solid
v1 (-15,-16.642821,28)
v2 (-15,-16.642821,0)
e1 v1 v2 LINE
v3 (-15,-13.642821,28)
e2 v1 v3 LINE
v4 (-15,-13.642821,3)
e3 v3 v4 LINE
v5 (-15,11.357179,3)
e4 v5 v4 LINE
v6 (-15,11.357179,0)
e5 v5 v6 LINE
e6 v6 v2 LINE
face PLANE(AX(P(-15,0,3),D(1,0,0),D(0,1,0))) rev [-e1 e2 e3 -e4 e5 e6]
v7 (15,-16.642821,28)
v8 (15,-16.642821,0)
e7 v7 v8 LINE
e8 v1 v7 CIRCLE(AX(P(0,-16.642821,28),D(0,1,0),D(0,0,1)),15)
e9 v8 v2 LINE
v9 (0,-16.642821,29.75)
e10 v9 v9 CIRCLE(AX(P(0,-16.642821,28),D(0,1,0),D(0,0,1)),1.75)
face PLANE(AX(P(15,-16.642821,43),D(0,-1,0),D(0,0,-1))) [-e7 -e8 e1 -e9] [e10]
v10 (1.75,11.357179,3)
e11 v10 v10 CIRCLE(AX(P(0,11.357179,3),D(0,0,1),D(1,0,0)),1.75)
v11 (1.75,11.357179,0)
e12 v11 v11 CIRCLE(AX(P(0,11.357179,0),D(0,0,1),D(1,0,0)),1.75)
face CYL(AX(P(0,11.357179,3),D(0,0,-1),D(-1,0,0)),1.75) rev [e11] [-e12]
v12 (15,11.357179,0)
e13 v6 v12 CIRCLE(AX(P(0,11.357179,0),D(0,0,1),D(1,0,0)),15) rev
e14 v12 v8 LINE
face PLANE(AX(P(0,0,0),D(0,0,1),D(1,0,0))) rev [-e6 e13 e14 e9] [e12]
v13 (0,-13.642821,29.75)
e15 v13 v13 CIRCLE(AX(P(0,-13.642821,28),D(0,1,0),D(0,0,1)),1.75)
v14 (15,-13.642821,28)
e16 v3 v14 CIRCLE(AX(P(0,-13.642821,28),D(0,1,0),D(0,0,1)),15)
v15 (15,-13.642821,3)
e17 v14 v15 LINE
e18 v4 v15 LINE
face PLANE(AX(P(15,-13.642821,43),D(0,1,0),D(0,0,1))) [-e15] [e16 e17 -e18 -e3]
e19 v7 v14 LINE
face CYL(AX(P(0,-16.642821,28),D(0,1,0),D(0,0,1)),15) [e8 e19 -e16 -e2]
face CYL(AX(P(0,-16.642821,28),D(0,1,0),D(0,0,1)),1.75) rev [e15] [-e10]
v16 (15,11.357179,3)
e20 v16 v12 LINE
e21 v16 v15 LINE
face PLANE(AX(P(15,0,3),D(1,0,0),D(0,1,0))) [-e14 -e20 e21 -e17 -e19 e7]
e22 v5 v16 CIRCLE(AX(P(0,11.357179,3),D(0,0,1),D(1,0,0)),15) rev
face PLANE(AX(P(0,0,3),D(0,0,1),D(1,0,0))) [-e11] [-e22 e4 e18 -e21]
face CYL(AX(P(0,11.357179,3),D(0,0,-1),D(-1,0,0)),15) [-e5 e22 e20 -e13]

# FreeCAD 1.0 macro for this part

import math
import FreeCAD as App
import Part
import Sketcher
Q = App.Units.Quantity

doc = App.newDocument("Part")
body = doc.addObject("PartDesign::Body", "Body")

# Sketch on XY plane
sketch1 = doc.addObject("Sketcher::SketchObject", "Sketch")
body.addObject(sketch1)
sketch1.AttachmentSupport = (doc.XY_Plane, [""])
sketch1.MapMode = "FlatFace"
sketch1.addGeometry([
    Part.LineSegment(App.Vector(-15, 11.4, 0), App.Vector(-15, -13.6, 0)),  # 0
    Part.LineSegment(App.Vector(-15, -13.6, 0), App.Vector(15, -13.6, 0)),  # 1
    Part.LineSegment(App.Vector(15, -13.6, 0), App.Vector(15, 11.4, 0)),  # 2
    Part.ArcOfCircle(Part.Circle(App.Vector(0, 11.4, 0), App.Vector(0, 0, 1), 15), math.radians(0), math.radians(180)),  # 3
    Part.Circle(App.Vector(0, 11.4, 0), App.Vector(0, 0, 1), 1.8),  # 4
], False)
sketch1.addConstraint([
    Sketcher.Constraint("Coincident", 0, 2, 1, 1),
    Sketcher.Constraint("Coincident", 1, 2, 2, 1),
    Sketcher.Constraint("Tangent", 2, 2, 3, 1),
    Sketcher.Constraint("Tangent", 3, 2, 0, 1),
    Sketcher.Constraint("Vertical", 0),
    Sketcher.Constraint("Horizontal", 1),
    Sketcher.Constraint("Vertical", 2),
    Sketcher.Constraint("Coincident", 4, 3, 3, 3),
    Sketcher.Constraint("PointOnObject", 3, 3, -2),
    Sketcher.Constraint("Radius", 3, Q("15 mm")),
    Sketcher.Constraint("Diameter", 4, Q("3.5 mm")),
    Sketcher.Constraint("DistanceY", 0, 2, 0, 1, Q("25 mm")),
    Sketcher.Constraint("DistanceY", -1, 1, 3, 3, Q("11.357179 mm")),
])
pad1 = doc.addObject("PartDesign::Pad", "Pad")
body.addObject(pad1)
pad1.Profile = sketch1
pad1.Length = 3

# Sketch on XY plane
sketch2 = doc.addObject("Sketcher::SketchObject", "Sketch001")
body.addObject(sketch2)
sketch2.AttachmentSupport = (doc.XY_Plane, [""])
sketch2.MapMode = "FlatFace"
sketch2.addGeometry([
    Part.LineSegment(App.Vector(15, -13.6, 0), App.Vector(15, -16.6, 0)),
    Part.LineSegment(App.Vector(15, -16.6, 0), App.Vector(-15, -16.6, 0)),
    Part.LineSegment(App.Vector(-15, -16.6, 0), App.Vector(-15, -13.6, 0)),
    Part.LineSegment(App.Vector(-15, -13.6, 0), App.Vector(15, -13.6, 0)),
], False)
sketch2.addConstraint([
    Sketcher.Constraint("Coincident", 0, 2, 1, 1),
    Sketcher.Constraint("Coincident", 1, 2, 2, 1),
    Sketcher.Constraint("Coincident", 2, 2, 3, 1),
    Sketcher.Constraint("Coincident", 3, 2, 0, 1),
    Sketcher.Constraint("Vertical", 0),
    Sketcher.Constraint("Horizontal", 1),
    Sketcher.Constraint("Vertical", 2),
    Sketcher.Constraint("Horizontal", 3),
    Sketcher.Constraint("DistanceX", 1, 2, 1, 1, Q("30 mm")),
    Sketcher.Constraint("DistanceY", 0, 2, 0, 1, Q("3 mm")),
    Sketcher.Constraint("DistanceX", -1, 1, 0, 2, Q("15 mm")),
    Sketcher.Constraint("DistanceY", 0, 2, -1, 1, Q("16.642821 mm")),
])
pad2 = doc.addObject("PartDesign::Pad", "Pad001")
body.addObject(pad2)
pad2.Profile = sketch2
pad2.Length = 43

# Sketch on XZ plane
sketch3 = doc.addObject("Sketcher::SketchObject", "Sketch002")
body.addObject(sketch3)
sketch3.AttachmentSupport = (doc.XZ_Plane, [""])
sketch3.MapMode = "FlatFace"
sketch3.AttachmentOffset = App.Placement(App.Vector(0, 0, 13.642821), App.Rotation())
sketch3.addGeometry([
    Part.LineSegment(App.Vector(15, 43, 0), App.Vector(15, 28, 0)),  # 0
    Part.ArcOfCircle(Part.Circle(App.Vector(0, 28, 0), App.Vector(0, 0, 1), 15), math.radians(0), math.radians(90)),  # 1
    Part.LineSegment(App.Vector(0, 43, 0), App.Vector(15, 43, 0)),  # 2
    Part.LineSegment(App.Vector(-15, 43, 0), App.Vector(0, 43, 0)),  # 3
    Part.ArcOfCircle(Part.Circle(App.Vector(0, 28, 0), App.Vector(0, 0, 1), 15), math.radians(90), math.radians(180)),  # 4
    Part.LineSegment(App.Vector(-15, 28, 0), App.Vector(-15, 43, 0)),  # 5
], False)
sketch3.addConstraint([
    Sketcher.Constraint("Tangent", 0, 2, 1, 1),
    Sketcher.Constraint("Tangent", 1, 2, 2, 1),
    Sketcher.Constraint("Coincident", 2, 2, 0, 1),
    Sketcher.Constraint("Tangent", 3, 2, 4, 1),
    Sketcher.Constraint("Tangent", 4, 2, 5, 1),
    Sketcher.Constraint("Coincident", 5, 2, 3, 1),
    Sketcher.Constraint("Vertical", 0),
    Sketcher.Constraint("Horizontal", 2),
    Sketcher.Constraint("Horizontal", 3),
    Sketcher.Constraint("Vertical", 5),
    Sketcher.Constraint("Coincident", 4, 3, 1, 3),
    Sketcher.Constraint("Equal", 1, 4),
    Sketcher.Constraint("PointOnObject", 1, 3, -2),
    Sketcher.Constraint("Radius", 1, Q("15 mm")),
    Sketcher.Constraint("DistanceY", -1, 1, 1, 3, Q("28 mm")),
])
pocket1 = doc.addObject("PartDesign::Pocket", "Pocket")
body.addObject(pocket1)
pocket1.Profile = sketch3
pocket1.Type = "ThroughAll"
pocket1.Midplane = True

# Sketch on XZ plane
sketch4 = doc.addObject("Sketcher::SketchObject", "Sketch003")
body.addObject(sketch4)
sketch4.AttachmentSupport = (doc.XZ_Plane, [""])
sketch4.MapMode = "FlatFace"
sketch4.AttachmentOffset = App.Placement(App.Vector(0, 0, 13.642821), App.Rotation())
sketch4.addGeometry(Part.Circle(App.Vector(0, 28, 0), App.Vector(0, 0, 1), 1.8), False)
sketch4.addConstraint([
    Sketcher.Constraint("PointOnObject", 0, 3, -2),
    Sketcher.Constraint("Diameter", 0, Q("3.5 mm")),
    Sketcher.Constraint("DistanceY", -1, 1, 0, 3, Q("28 mm")),
])
pocket2 = doc.addObject("PartDesign::Pocket", "Pocket001")
body.addObject(pocket2)
pocket2.Profile = sketch4
pocket2.Type = "ThroughAll"
pocket2.Reversed = True

doc.recompute()
